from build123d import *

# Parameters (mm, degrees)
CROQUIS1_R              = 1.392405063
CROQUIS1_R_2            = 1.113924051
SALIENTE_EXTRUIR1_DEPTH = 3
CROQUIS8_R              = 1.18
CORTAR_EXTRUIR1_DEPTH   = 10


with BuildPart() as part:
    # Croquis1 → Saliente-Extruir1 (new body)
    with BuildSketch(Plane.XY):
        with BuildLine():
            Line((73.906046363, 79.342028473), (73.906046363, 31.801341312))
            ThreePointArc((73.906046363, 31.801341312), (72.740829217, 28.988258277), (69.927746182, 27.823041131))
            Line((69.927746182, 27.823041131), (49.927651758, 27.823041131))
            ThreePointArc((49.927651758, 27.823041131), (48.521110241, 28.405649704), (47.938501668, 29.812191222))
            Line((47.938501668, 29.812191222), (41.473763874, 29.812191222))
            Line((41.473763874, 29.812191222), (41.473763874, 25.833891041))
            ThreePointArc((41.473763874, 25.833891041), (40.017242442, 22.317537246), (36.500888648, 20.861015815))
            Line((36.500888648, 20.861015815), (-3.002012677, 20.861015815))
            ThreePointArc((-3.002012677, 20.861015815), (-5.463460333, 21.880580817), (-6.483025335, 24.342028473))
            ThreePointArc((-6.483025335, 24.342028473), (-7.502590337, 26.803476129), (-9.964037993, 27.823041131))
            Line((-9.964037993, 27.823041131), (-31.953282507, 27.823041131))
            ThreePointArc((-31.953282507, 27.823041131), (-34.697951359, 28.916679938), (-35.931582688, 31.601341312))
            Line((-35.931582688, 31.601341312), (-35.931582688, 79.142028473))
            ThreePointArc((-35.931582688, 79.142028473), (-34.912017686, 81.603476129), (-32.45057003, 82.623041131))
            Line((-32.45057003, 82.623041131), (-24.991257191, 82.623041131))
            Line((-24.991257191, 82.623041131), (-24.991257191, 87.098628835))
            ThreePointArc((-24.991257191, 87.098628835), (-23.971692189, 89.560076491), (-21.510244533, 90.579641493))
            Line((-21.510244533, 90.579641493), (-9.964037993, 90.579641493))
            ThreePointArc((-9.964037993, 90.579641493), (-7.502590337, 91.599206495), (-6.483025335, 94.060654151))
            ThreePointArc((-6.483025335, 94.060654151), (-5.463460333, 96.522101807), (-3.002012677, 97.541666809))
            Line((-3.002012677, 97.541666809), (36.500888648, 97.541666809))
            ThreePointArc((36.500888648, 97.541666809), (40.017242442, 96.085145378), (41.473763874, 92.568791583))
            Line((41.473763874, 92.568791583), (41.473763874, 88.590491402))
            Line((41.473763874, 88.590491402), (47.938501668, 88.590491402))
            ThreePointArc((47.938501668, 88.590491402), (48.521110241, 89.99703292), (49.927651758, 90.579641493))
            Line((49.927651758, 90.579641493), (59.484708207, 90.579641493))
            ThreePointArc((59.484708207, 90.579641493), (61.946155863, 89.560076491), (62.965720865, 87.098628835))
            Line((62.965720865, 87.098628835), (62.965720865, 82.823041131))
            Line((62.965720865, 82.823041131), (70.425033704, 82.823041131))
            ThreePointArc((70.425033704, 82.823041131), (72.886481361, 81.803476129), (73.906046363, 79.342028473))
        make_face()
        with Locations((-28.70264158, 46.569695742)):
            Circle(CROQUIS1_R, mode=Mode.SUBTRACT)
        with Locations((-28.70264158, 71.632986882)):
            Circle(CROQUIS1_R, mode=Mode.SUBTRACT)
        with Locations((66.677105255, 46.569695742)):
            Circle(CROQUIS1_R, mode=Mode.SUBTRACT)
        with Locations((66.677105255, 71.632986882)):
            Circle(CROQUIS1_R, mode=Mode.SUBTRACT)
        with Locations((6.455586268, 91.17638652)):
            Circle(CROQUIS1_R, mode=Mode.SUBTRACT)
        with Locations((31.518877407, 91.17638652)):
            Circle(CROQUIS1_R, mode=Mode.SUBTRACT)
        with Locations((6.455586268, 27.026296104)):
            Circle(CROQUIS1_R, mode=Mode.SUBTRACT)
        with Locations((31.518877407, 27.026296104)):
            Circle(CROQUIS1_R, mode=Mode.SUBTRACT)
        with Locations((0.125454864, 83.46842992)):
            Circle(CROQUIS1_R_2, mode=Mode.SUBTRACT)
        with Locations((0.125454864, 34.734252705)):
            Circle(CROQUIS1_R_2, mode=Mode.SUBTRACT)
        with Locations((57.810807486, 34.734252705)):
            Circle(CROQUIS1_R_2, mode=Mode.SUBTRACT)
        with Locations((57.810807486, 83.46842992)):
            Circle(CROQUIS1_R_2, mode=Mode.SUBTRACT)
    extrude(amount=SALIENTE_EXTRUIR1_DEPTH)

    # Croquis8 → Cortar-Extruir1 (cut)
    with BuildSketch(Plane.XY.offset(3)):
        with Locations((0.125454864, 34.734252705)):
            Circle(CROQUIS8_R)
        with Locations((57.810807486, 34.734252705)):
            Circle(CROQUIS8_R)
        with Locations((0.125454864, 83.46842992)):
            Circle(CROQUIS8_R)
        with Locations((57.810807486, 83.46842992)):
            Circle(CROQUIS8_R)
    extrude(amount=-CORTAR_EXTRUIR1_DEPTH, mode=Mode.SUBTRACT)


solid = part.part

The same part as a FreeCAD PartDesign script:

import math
import FreeCAD as App
import Part
import Sketcher

V = App.Vector

doc = App.newDocument("Part")
body = doc.addObject("PartDesign::Body", "Body")

sketch1 = doc.addObject("Sketcher::SketchObject", "Sketch")
body.addObject(sketch1)
sketch1.AttachmentSupport = (doc.XY_Plane, [""])
sketch1.MapMode = "FlatFace"
sketch1.addGeometry(Part.LineSegment(V(73.9, 31.8, 0), V(73.9, 79.3, 0)), False)
sketch1.addGeometry(Part.ArcOfCircle(Part.Circle(V(70.4, 79.3, 0), V(0, 0, 1), 3.5), math.radians(0), math.radians(90)), False)
sketch1.addGeometry(Part.LineSegment(V(70.4, 82.8, 0), V(63, 82.8, 0)), False)
sketch1.addGeometry(Part.LineSegment(V(63, 82.8, 0), V(63, 87.1, 0)), False)
sketch1.addGeometry(Part.ArcOfCircle(Part.Circle(V(59.5, 87.1, 0), V(0, 0, 1), 3.5), math.radians(0), math.radians(90)), False)
sketch1.addGeometry(Part.LineSegment(V(59.5, 90.6, 0), V(49.9, 90.6, 0)), False)
sketch1.addGeometry(Part.ArcOfCircle(Part.Circle(V(49.9, 88.6, 0), V(0, 0, 1), 2), math.radians(90), math.radians(180)), False)
sketch1.addGeometry(Part.LineSegment(V(47.9, 88.6, 0), V(41.5, 88.6, 0)), False)
sketch1.addGeometry(Part.LineSegment(V(41.5, 88.6, 0), V(41.5, 92.6, 0)), False)
sketch1.addGeometry(Part.ArcOfCircle(Part.Circle(V(36.5, 92.6, 0), V(0, 0, 1), 5), math.radians(0), math.radians(90)), False)
sketch1.addGeometry(Part.LineSegment(V(36.5, 97.5, 0), V(-3, 97.5, 0)), False)
sketch1.addGeometry(Part.ArcOfCircle(Part.Circle(V(-3, 94.1, 0), V(0, 0, 1), 3.5), math.radians(90), math.radians(180)), False)
sketch1.addGeometry(Part.ArcOfCircle(Part.Circle(V(-10, 94.1, 0), V(0, 0, 1), 3.5), math.radians(-90), math.radians(0)), False)
sketch1.addGeometry(Part.LineSegment(V(-10, 90.6, 0), V(-21.5, 90.6, 0)), False)
sketch1.addGeometry(Part.ArcOfCircle(Part.Circle(V(-21.5, 87.1, 0), V(0, 0, 1), 3.5), math.radians(90), math.radians(180)), False)
sketch1.addGeometry(Part.LineSegment(V(-25, 87.1, 0), V(-25, 82.6, 0)), False)
sketch1.addGeometry(Part.LineSegment(V(-25, 82.6, 0), V(-32.5, 82.6, 0)), False)
sketch1.addGeometry(Part.ArcOfCircle(Part.Circle(V(-32.5, 79.1, 0), V(0, 0, 1), 3.5), math.radians(90), math.radians(180)), False)
sketch1.addGeometry(Part.LineSegment(V(-35.9, 79.1, 0), V(-35.9, 31.6, 0)), False)
sketch1.addGeometry(Part.ArcOfCircle(Part.Circle(V(-32, 31.8, 0), V(0, 0, 1), 4), math.radians(-177), math.radians(-90)), False)
sketch1.addGeometry(Part.LineSegment(V(-32, 27.8, 0), V(-10, 27.8, 0)), False)
sketch1.addGeometry(Part.ArcOfCircle(Part.Circle(V(-10, 24.3, 0), V(0, 0, 1), 3.5), math.radians(0), math.radians(90)), False)
sketch1.addGeometry(Part.ArcOfCircle(Part.Circle(V(-3, 24.3, 0), V(0, 0, 1), 3.5), math.radians(180), math.radians(270)), False)
sketch1.addGeometry(Part.LineSegment(V(-3, 20.9, 0), V(36.5, 20.9, 0)), False)
sketch1.addGeometry(Part.ArcOfCircle(Part.Circle(V(36.5, 25.8, 0), V(0, 0, 1), 5), math.radians(-90), math.radians(0)), False)
sketch1.addGeometry(Part.LineSegment(V(41.5, 25.8, 0), V(41.5, 29.8, 0)), False)
sketch1.addGeometry(Part.LineSegment(V(41.5, 29.8, 0), V(47.9, 29.8, 0)), False)
sketch1.addGeometry(Part.ArcOfCircle(Part.Circle(V(49.9, 29.8, 0), V(0, 0, 1), 2), math.radians(180), math.radians(270)), False)
sketch1.addGeometry(Part.LineSegment(V(49.9, 27.8, 0), V(69.9, 27.8, 0)), False)
sketch1.addGeometry(Part.ArcOfCircle(Part.Circle(V(69.9, 31.8, 0), V(0, 0, 1), 4), math.radians(-90), math.radians(0)), False)
sketch1.addGeometry(Part.Circle(V(57.8, 34.7, 0), V(0, 0, 1), 1.1), False)
sketch1.addGeometry(Part.Circle(V(31.5, 27, 0), V(0, 0, 1), 1.4), False)
sketch1.addGeometry(Part.Circle(V(66.7, 46.6, 0), V(0, 0, 1), 1.4), False)
sketch1.addGeometry(Part.Circle(V(6.5, 27, 0), V(0, 0, 1), 1.4), False)
sketch1.addGeometry(Part.Circle(V(0.1, 34.7, 0), V(0, 0, 1), 1.1), False)
sketch1.addGeometry(Part.Circle(V(-28.7, 46.6, 0), V(0, 0, 1), 1.4), False)
sketch1.addGeometry(Part.Circle(V(66.7, 71.6, 0), V(0, 0, 1), 1.4), False)
sketch1.addGeometry(Part.Circle(V(57.8, 83.5, 0), V(0, 0, 1), 1.1), False)
sketch1.addGeometry(Part.Circle(V(31.5, 91.2, 0), V(0, 0, 1), 1.4), False)
sketch1.addGeometry(Part.Circle(V(-28.7, 71.6, 0), V(0, 0, 1), 1.4), False)
sketch1.addGeometry(Part.Circle(V(0.1, 83.5, 0), V(0, 0, 1), 1.1), False)
sketch1.addGeometry(Part.Circle(V(6.5, 91.2, 0), V(0, 0, 1), 1.4), False)
sketch1.addConstraint(Sketcher.Constraint("Tangent", 0, 2, 1, 1))
sketch1.addConstraint(Sketcher.Constraint("Tangent", 1, 2, 2, 1))
sketch1.addConstraint(Sketcher.Constraint("Coincident", 2, 2, 3, 1))
sketch1.addConstraint(Sketcher.Constraint("Tangent", 3, 2, 4, 1))
sketch1.addConstraint(Sketcher.Constraint("Tangent", 4, 2, 5, 1))
sketch1.addConstraint(Sketcher.Constraint("Tangent", 5, 2, 6, 1))
sketch1.addConstraint(Sketcher.Constraint("Coincident", 6, 2, 7, 1))
sketch1.addConstraint(Sketcher.Constraint("Coincident", 7, 2, 8, 1))
sketch1.addConstraint(Sketcher.Constraint("Tangent", 8, 2, 9, 1))
sketch1.addConstraint(Sketcher.Constraint("Tangent", 9, 2, 10, 1))
sketch1.addConstraint(Sketcher.Constraint("Tangent", 10, 2, 11, 1))
sketch1.addConstraint(Sketcher.Constraint("Tangent", 11, 2, 12, 2))
sketch1.addConstraint(Sketcher.Constraint("Tangent", 12, 1, 13, 1))
sketch1.addConstraint(Sketcher.Constraint("Tangent", 13, 2, 14, 1))
sketch1.addConstraint(Sketcher.Constraint("Tangent", 14, 2, 15, 1))
sketch1.addConstraint(Sketcher.Constraint("Coincident", 15, 2, 16, 1))
sketch1.addConstraint(Sketcher.Constraint("Tangent", 16, 2, 17, 1))
sketch1.addConstraint(Sketcher.Constraint("Tangent", 17, 2, 18, 1))
sketch1.addConstraint(Sketcher.Constraint("Coincident", 18, 2, 19, 1))
sketch1.addConstraint(Sketcher.Constraint("Coincident", 19, 2, 20, 1))
sketch1.addConstraint(Sketcher.Constraint("Tangent", 20, 2, 21, 2))
sketch1.addConstraint(Sketcher.Constraint("Tangent", 21, 1, 22, 1))
sketch1.addConstraint(Sketcher.Constraint("Tangent", 22, 2, 23, 1))
sketch1.addConstraint(Sketcher.Constraint("Tangent", 23, 2, 24, 1))
sketch1.addConstraint(Sketcher.Constraint("Tangent", 24, 2, 25, 1))
sketch1.addConstraint(Sketcher.Constraint("Coincident", 25, 2, 26, 1))
sketch1.addConstraint(Sketcher.Constraint("Coincident", 26, 2, 27, 1))
sketch1.addConstraint(Sketcher.Constraint("Tangent", 27, 2, 28, 1))
sketch1.addConstraint(Sketcher.Constraint("Tangent", 28, 2, 29, 1))
sketch1.addConstraint(Sketcher.Constraint("Tangent", 29, 2, 0, 1))
sketch1.addConstraint(Sketcher.Constraint("Vertical", 0))
sketch1.addConstraint(Sketcher.Constraint("Horizontal", 2))
sketch1.addConstraint(Sketcher.Constraint("Vertical", 3))
sketch1.addConstraint(Sketcher.Constraint("Horizontal", 5))
sketch1.addConstraint(Sketcher.Constraint("Horizontal", 7))
sketch1.addConstraint(Sketcher.Constraint("Vertical", 8))
sketch1.addConstraint(Sketcher.Constraint("Horizontal", 10))
sketch1.addConstraint(Sketcher.Constraint("Horizontal", 13))
sketch1.addConstraint(Sketcher.Constraint("Vertical", 15))
sketch1.addConstraint(Sketcher.Constraint("Horizontal", 16))
sketch1.addConstraint(Sketcher.Constraint("Vertical", 18))
sketch1.addConstraint(Sketcher.Constraint("Horizontal", 20))
sketch1.addConstraint(Sketcher.Constraint("Horizontal", 23))
sketch1.addConstraint(Sketcher.Constraint("Vertical", 25))
sketch1.addConstraint(Sketcher.Constraint("Horizontal", 26))
sketch1.addConstraint(Sketcher.Constraint("Horizontal", 28))
sketch1.addConstraint(Sketcher.Constraint("Equal", 1, 4))
sketch1.addConstraint(Sketcher.Constraint("Equal", 4, 11))
sketch1.addConstraint(Sketcher.Constraint("Equal", 11, 12))
sketch1.addConstraint(Sketcher.Constraint("Equal", 12, 14))
sketch1.addConstraint(Sketcher.Constraint("Equal", 14, 17))
sketch1.addConstraint(Sketcher.Constraint("Equal", 17, 21))
sketch1.addConstraint(Sketcher.Constraint("Equal", 21, 22))
sketch1.addConstraint(Sketcher.Constraint("Equal", 9, 24))
sketch1.addConstraint(Sketcher.Constraint("Equal", 6, 27))
sketch1.addConstraint(Sketcher.Constraint("Equal", 19, 29))
sketch1.addConstraint(Sketcher.Constraint("Equal", 31, 32))
sketch1.addConstraint(Sketcher.Constraint("Equal", 32, 33))
sketch1.addConstraint(Sketcher.Constraint("Equal", 30, 34))
sketch1.addConstraint(Sketcher.Constraint("Equal", 33, 35))
sketch1.addConstraint(Sketcher.Constraint("Equal", 35, 36))
sketch1.addConstraint(Sketcher.Constraint("Equal", 34, 37))
sketch1.addConstraint(Sketcher.Constraint("Equal", 36, 38))
sketch1.addConstraint(Sketcher.Constraint("Equal", 38, 39))
sketch1.addConstraint(Sketcher.Constraint("Equal", 37, 40))
sketch1.addConstraint(Sketcher.Constraint("Equal", 39, 41))
sketch1.addConstraint(Sketcher.Constraint("Horizontal", 11, 3, 12, 3))
sketch1.addConstraint(Sketcher.Constraint("Horizontal", 4, 3, 14, 3))
sketch1.addConstraint(Sketcher.Constraint("Horizontal", 21, 3, 22, 3))
sketch1.addConstraint(Sketcher.Constraint("Horizontal", 31, 3, 33, 3))
sketch1.addConstraint(Sketcher.Constraint("Horizontal", 30, 3, 34, 3))
sketch1.addConstraint(Sketcher.Constraint("Horizontal", 32, 3, 35, 3))
sketch1.addConstraint(Sketcher.Constraint("Horizontal", 36, 3, 39, 3))
sketch1.addConstraint(Sketcher.Constraint("Horizontal", 37, 3, 40, 3))
sketch1.addConstraint(Sketcher.Constraint("Horizontal", 38, 3, 41, 3))
sketch1.addConstraint(Sketcher.Constraint("Horizontal", 27, 3, 25, 2))
sketch1.addConstraint(Sketcher.Constraint("Horizontal", 20, 2, 27, 2))
sketch1.addConstraint(Sketcher.Constraint("Vertical", 12, 3, 21, 3))
sketch1.addConstraint(Sketcher.Constraint("Vertical", 9, 3, 24, 3))
sketch1.addConstraint(Sketcher.Constraint("Vertical", 6, 3, 27, 3))
sketch1.addConstraint(Sketcher.Constraint("Vertical", 32, 3, 36, 3))
sketch1.addConstraint(Sketcher.Constraint("Vertical", 30, 3, 37, 3))
sketch1.addConstraint(Sketcher.Constraint("Vertical", 31, 3, 38, 3))
sketch1.addConstraint(Sketcher.Constraint("Vertical", 35, 3, 39, 3))
sketch1.addConstraint(Sketcher.Constraint("Vertical", 34, 3, 40, 3))
sketch1.addConstraint(Sketcher.Constraint("Vertical", 33, 3, 41, 3))
sketch1.addConstraint(Sketcher.Constraint("Equal", 2, 16))
sketch1.addConstraint(Sketcher.Constraint("Equal", 0, 18))
sketch1.addConstraint(Sketcher.Constraint("Equal", 8, 25))
sketch1.addConstraint(Sketcher.Constraint("Radius", 19, 3.9783))
sketch1.addConstraint(Sketcher.Constraint("DistanceY", 21, 3, 17, 3, 54.8))
sketch1.addConstraint(Sketcher.Constraint("Diameter", 30, 2.227848))
sketch1.addConstraint(Sketcher.Constraint("Diameter", 31, 2.78481))
sketch1.addConstraint(Sketcher.Constraint("Radius", 6, 1.98915))
sketch1.addConstraint(Sketcher.Constraint("DistanceX", 10, 2, 10, 1, 39.502901))
sketch1.addConstraint(Sketcher.Constraint("DistanceY", 8, 1, 8, 2, 3.9783))
sketch1.addConstraint(Sketcher.Constraint("Radius", 1, 3.481013))
sketch1.addConstraint(Sketcher.Constraint("DistanceX", -1, 1, 6, 2, 47.938502))
sketch1.addConstraint(Sketcher.Constraint("DistanceY", 1, 3, 4, 3, 7.7566))
sketch1.addConstraint(Sketcher.Constraint("DistanceY", 17, 3, 14, 3, 7.9566))
sketch1.addConstraint(Sketcher.Constraint("DistanceX", 19, 3, 11, 3, 28.9563))
sketch1.addConstraint(Sketcher.Constraint("DistanceX", 30, 3, 4, 3, 1.673901))
sketch1.addConstraint(Sketcher.Constraint("DistanceX", 22, 3, 33, 3, 9.457599))
sketch1.addConstraint(Sketcher.Constraint("DistanceY", 37, 3, 4, 3, 3.630199))
sketch1.addConstraint(Sketcher.Constraint("DistanceX", 14, 3, 40, 3, 21.635699))
sketch1.addConstraint(Sketcher.Constraint("DistanceX", 18, 2, 19, 2, 3.9783))
sketch1.addConstraint(Sketcher.Constraint("DistanceX", 2, 2, 2, 1, 7.459313))
sketch1.addConstraint(Sketcher.Constraint("DistanceX", 5, 2, 5, 1, 9.557056))
sketch1.addConstraint(Sketcher.Constraint("DistanceX", 7, 2, 7, 1, 6.464738))
sketch1.addConstraint(Sketcher.Constraint("DistanceY", -1, 1, 1, 3, 79.342028))
sketch1.addConstraint(Sketcher.Constraint("DistanceX", 35, 3, -1, 1, 28.702642))
sketch1.addConstraint(Sketcher.Constraint("DistanceY", 27, 3, 30, 3, 4.922061))
sketch1.addConstraint(Sketcher.Constraint("DistanceX", 31, 3, 24, 3, 4.982011))
sketch1.addConstraint(Sketcher.Constraint("DistanceX", 32, 3, 29, 3, 3.250641))
sketch1.addConstraint(Sketcher.Constraint("DistanceY", 36, 3, 1, 3, 7.709042))
sketch1.addConstraint(Sketcher.Constraint("DistanceY", 32, 3, 36, 3, 25.063291))
sketch1.addConstraint(Sketcher.Constraint("DistanceY", 38, 3, 9, 2, 6.36528))
sketch1.addConstraint(Sketcher.Constraint("DistanceY", 22, 2, 33, 3, 6.16528))
pad1 = doc.addObject("PartDesign::Pad", "Pad")
body.addObject(pad1)
pad1.Profile = sketch1
pad1.Length = 3

sketch2 = doc.addObject("Sketcher::SketchObject", "Sketch001")
body.addObject(sketch2)
sketch2.AttachmentSupport = (doc.XY_Plane, [""])
sketch2.MapMode = "FlatFace"
sketch2.AttachmentOffset = App.Placement(V(0, 0, 3), App.Rotation())
sketch2.addGeometry(Part.Circle(V(0.1, 34.7, 0), V(0, 0, 1), 1.2), False)
sketch2.addGeometry(Part.Circle(V(57.8, 34.7, 0), V(0, 0, 1), 1.2), False)
sketch2.addGeometry(Part.Circle(V(0.1, 83.5, 0), V(0, 0, 1), 1.2), False)
sketch2.addGeometry(Part.Circle(V(57.8, 83.5, 0), V(0, 0, 1), 1.2), False)
sketch2.addConstraint(Sketcher.Constraint("Equal", 0, 1))
sketch2.addConstraint(Sketcher.Constraint("Equal", 1, 2))
sketch2.addConstraint(Sketcher.Constraint("Equal", 2, 3))
sketch2.addConstraint(Sketcher.Constraint("Horizontal", 0, 3, 1, 3))
sketch2.addConstraint(Sketcher.Constraint("Horizontal", 2, 3, 3, 3))
sketch2.addConstraint(Sketcher.Constraint("Vertical", 0, 3, 2, 3))
sketch2.addConstraint(Sketcher.Constraint("Vertical", 1, 3, 3, 3))
sketch2.addConstraint(Sketcher.Constraint("Diameter", 0, 2.36))
sketch2.addConstraint(Sketcher.Constraint("DistanceY", -1, 1, 2, 3, 83.46843))
sketch2.addConstraint(Sketcher.Constraint("DistanceX", -1, 1, 0, 3, 0.125455))
sketch2.addConstraint(Sketcher.Constraint("DistanceY", -1, 1, 0, 3, 34.734253))
sketch2.addConstraint(Sketcher.Constraint("DistanceX", -1, 1, 1, 3, 57.810807))
pocket1 = doc.addObject("PartDesign::Pocket", "Pocket")
body.addObject(pocket1)
pocket1.Profile = sketch2
pocket1.Length = 10

doc.recompute()
